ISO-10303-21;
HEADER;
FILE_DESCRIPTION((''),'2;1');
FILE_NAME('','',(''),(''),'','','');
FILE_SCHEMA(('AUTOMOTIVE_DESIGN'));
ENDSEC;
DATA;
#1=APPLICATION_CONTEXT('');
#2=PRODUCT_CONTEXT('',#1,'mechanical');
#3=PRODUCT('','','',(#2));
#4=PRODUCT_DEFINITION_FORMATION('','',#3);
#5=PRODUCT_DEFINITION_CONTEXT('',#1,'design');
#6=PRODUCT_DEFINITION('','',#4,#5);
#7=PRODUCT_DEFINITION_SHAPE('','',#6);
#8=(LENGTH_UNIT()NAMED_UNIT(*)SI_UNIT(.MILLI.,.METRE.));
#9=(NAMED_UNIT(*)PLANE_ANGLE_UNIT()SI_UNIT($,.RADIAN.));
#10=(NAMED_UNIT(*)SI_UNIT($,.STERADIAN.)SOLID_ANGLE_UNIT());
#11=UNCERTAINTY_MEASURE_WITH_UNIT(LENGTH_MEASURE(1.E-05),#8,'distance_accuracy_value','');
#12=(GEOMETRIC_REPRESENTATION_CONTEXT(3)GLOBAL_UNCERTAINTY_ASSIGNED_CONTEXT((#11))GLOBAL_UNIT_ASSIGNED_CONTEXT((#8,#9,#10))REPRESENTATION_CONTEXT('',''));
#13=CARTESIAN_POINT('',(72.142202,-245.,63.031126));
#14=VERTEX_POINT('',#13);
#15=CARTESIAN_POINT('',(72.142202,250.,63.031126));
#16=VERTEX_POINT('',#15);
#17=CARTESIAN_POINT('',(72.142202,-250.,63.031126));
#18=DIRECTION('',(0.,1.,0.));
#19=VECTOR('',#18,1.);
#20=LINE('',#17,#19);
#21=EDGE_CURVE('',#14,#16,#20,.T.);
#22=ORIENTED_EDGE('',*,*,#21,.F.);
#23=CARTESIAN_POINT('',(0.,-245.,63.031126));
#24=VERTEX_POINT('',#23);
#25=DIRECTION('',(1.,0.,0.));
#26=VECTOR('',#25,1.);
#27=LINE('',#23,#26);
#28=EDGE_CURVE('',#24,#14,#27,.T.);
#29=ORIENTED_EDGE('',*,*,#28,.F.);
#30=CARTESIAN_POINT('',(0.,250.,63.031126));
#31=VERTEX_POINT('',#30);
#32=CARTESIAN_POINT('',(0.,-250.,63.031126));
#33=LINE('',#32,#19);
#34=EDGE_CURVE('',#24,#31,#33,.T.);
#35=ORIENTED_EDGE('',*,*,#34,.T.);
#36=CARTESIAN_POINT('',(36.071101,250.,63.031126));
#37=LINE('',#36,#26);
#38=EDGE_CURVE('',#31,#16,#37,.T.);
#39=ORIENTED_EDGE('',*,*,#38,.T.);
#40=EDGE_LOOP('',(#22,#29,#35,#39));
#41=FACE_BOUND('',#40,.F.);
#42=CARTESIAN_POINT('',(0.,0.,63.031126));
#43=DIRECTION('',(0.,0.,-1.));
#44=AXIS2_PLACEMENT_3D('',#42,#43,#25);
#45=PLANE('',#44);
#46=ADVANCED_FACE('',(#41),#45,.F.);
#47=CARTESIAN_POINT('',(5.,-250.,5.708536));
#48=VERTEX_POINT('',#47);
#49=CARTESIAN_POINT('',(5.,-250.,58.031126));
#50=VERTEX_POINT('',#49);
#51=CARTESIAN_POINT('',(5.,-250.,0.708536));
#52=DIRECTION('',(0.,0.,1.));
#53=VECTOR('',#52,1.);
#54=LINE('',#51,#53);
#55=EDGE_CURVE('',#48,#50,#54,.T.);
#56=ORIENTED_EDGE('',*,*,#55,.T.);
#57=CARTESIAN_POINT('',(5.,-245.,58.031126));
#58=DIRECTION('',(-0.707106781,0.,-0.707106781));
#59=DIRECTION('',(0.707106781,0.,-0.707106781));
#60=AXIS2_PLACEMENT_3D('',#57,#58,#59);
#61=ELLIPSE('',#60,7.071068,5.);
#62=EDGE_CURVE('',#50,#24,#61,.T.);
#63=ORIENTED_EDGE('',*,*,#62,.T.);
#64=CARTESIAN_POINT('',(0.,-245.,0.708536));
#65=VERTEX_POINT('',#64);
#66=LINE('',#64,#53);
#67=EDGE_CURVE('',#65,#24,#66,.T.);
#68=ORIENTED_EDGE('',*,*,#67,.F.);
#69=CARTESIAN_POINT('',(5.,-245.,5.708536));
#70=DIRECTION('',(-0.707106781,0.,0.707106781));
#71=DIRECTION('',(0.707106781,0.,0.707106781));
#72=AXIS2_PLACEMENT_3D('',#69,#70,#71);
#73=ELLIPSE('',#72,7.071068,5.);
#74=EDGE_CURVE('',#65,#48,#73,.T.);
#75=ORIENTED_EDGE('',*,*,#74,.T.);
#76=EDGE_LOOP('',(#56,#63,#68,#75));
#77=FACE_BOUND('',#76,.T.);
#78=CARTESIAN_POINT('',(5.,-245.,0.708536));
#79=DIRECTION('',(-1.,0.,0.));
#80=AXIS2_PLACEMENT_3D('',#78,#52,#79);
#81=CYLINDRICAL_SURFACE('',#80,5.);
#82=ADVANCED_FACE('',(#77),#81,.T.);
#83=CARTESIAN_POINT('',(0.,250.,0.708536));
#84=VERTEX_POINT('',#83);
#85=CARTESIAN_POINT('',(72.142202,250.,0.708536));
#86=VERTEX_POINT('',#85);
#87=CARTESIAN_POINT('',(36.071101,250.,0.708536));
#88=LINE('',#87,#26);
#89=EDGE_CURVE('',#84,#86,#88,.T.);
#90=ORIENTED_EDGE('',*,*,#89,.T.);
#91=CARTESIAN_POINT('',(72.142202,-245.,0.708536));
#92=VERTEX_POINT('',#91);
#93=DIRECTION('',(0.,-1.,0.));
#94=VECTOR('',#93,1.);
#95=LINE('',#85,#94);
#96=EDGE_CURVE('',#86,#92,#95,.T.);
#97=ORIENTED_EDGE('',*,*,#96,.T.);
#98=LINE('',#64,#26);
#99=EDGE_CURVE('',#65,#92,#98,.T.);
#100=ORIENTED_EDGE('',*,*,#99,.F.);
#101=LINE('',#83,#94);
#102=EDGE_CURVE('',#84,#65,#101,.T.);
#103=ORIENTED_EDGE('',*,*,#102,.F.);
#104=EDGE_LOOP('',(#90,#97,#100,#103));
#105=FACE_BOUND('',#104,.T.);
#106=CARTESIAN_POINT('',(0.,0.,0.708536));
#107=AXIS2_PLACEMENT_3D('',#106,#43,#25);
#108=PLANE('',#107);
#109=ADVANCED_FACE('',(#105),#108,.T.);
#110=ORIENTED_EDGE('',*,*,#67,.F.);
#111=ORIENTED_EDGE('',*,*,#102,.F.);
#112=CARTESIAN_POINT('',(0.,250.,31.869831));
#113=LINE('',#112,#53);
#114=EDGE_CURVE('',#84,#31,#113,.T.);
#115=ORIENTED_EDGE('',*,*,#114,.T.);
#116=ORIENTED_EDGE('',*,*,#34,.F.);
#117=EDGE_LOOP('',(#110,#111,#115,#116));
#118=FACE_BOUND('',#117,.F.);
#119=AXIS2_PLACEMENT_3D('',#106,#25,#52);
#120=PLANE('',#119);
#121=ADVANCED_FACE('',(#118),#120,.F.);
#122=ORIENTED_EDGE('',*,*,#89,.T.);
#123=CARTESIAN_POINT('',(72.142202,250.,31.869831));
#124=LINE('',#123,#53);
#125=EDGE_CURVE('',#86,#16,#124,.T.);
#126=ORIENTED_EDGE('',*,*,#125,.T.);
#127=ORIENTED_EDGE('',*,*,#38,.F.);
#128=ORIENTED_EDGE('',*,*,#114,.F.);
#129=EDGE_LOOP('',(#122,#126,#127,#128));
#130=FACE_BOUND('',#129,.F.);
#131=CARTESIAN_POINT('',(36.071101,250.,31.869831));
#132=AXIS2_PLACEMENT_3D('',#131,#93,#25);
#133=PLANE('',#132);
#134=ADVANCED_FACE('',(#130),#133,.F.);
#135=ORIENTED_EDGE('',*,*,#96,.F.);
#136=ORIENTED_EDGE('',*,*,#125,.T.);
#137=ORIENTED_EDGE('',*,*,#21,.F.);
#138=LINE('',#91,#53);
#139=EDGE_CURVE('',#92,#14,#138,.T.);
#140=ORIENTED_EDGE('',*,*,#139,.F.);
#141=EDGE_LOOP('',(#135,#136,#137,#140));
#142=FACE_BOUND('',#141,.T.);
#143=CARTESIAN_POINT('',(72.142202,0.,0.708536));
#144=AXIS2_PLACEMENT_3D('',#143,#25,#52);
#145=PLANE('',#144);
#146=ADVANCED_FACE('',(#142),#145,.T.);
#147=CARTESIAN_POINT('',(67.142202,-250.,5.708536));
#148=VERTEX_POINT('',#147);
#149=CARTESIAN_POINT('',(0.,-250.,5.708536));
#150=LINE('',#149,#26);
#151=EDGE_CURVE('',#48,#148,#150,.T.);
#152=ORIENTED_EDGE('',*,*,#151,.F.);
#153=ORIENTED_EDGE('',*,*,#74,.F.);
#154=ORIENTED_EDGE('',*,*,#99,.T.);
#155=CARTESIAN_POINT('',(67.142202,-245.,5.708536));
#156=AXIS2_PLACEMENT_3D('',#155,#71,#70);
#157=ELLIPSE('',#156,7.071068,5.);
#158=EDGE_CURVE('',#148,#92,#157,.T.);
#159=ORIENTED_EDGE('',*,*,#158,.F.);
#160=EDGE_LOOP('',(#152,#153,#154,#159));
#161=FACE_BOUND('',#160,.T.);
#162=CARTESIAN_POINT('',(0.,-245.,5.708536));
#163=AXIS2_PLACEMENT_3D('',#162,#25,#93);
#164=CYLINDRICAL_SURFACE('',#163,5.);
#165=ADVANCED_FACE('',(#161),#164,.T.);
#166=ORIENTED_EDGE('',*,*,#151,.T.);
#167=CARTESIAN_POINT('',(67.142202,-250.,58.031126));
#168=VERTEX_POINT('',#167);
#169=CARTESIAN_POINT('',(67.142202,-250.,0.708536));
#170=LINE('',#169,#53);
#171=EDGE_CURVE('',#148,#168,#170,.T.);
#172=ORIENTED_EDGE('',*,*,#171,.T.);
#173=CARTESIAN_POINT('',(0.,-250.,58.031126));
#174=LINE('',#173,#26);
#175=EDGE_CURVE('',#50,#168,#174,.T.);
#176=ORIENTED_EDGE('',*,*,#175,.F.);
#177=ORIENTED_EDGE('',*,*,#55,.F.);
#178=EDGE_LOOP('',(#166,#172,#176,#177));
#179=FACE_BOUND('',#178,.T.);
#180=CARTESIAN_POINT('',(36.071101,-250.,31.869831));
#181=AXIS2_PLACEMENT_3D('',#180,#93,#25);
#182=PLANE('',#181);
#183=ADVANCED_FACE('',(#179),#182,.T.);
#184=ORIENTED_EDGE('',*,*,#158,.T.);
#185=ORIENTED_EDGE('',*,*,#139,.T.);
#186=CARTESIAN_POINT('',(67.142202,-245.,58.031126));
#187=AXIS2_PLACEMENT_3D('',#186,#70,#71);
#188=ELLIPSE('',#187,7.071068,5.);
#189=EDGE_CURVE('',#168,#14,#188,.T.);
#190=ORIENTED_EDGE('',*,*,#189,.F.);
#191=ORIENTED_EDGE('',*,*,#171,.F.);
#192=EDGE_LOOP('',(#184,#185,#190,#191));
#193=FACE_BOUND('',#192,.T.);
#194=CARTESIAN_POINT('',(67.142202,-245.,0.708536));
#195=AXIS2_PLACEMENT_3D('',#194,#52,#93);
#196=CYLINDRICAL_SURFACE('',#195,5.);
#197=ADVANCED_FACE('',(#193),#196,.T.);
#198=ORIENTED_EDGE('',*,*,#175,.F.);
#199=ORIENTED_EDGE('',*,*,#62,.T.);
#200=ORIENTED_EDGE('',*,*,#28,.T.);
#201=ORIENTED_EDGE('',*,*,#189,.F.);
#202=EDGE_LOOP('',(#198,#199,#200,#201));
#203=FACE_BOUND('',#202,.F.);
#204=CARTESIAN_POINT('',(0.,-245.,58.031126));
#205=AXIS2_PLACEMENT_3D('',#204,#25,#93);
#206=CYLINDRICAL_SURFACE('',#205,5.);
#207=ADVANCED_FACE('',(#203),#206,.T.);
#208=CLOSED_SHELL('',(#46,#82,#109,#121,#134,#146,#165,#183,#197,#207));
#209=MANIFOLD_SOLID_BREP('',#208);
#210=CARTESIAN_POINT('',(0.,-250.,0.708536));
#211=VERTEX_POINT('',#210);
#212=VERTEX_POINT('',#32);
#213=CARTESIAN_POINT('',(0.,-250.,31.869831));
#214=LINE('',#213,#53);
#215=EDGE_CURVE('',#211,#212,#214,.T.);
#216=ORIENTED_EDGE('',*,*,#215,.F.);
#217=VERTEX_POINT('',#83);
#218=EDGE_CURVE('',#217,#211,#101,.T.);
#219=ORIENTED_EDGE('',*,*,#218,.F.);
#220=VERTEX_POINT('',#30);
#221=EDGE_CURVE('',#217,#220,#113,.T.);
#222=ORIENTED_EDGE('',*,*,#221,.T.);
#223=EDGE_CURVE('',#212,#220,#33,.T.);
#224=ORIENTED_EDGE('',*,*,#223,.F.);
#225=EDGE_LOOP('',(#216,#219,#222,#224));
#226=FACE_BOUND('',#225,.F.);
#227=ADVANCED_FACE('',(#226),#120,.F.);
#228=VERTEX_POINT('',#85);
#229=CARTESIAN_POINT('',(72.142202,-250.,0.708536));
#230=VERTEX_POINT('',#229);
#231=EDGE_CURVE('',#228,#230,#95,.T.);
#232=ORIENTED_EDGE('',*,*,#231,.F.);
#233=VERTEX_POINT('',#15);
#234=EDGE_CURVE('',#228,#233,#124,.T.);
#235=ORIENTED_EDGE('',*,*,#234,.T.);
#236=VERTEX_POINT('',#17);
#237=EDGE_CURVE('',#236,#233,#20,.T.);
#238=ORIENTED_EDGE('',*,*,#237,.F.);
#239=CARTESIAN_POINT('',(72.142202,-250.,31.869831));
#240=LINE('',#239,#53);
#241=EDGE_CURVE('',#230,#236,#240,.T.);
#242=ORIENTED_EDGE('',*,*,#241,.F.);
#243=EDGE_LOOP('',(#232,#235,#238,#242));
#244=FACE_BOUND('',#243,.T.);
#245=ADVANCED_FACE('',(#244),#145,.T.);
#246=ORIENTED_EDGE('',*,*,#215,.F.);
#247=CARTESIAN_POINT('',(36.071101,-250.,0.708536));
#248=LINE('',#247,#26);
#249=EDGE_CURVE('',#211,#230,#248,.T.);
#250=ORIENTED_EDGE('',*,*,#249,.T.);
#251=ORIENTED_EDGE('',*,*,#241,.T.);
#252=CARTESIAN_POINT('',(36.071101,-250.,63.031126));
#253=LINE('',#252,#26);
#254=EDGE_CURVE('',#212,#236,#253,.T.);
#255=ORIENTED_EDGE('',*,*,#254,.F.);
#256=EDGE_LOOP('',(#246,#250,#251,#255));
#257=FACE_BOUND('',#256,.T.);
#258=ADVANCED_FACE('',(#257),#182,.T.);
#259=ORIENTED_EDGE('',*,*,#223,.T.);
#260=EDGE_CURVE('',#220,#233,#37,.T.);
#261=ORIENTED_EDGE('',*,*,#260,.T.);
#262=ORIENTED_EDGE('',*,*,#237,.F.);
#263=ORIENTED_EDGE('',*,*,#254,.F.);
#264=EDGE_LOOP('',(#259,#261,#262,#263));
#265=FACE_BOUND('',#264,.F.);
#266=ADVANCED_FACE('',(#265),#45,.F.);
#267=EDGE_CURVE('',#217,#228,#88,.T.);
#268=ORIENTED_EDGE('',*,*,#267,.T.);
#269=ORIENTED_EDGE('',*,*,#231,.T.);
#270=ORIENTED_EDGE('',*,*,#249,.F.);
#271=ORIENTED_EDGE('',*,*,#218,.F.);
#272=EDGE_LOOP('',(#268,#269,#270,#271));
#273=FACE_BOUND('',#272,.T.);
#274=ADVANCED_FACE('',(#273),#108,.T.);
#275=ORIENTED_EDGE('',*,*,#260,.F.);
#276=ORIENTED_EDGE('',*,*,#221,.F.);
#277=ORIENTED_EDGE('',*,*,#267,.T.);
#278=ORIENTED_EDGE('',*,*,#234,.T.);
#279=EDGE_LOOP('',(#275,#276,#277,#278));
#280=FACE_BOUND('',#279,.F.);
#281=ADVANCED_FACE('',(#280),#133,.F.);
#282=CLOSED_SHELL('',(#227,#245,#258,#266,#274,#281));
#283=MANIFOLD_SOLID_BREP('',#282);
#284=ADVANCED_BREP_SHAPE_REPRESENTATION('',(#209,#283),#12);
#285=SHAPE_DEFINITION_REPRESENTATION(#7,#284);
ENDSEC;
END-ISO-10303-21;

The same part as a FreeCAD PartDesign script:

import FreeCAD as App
import Part
import Sketcher
from FreeCAD import Vector
Q = App.Units.Quantity


def edges_at(feature, points):
    """Names of the edges that pass closest to the given points."""
    edges = feature.Shape.Edges
    near = lambda p: min(range(len(edges)), key=lambda i: edges[i].distToShape(Part.Vertex(*p))[0])
    return sorted({f"Edge{near(p) + 1}" for p in points})

doc = App.newDocument("Part")
params = doc.addObject("Spreadsheet::Sheet", "Params")
for row, (alias, value) in enumerate([
    ("pad1_length", "500 mm"),
    ("fillet_radius", "5 mm"),
    ("pad2_length", "500 mm"),
], start=1):
    params.set(f"A{row}", alias)
    params.set(f"B{row}", "=" + value)
    params.setAlias(f"B{row}", alias)

body = doc.addObject("PartDesign::Body", "Body")

sketch1 = body.newObject("Sketcher::SketchObject", "Sketch")
sketch1.AttachmentSupport = (doc.getObject("XZ_Plane"), [""])
sketch1.MapMode = "FlatFace"
sketch1.addGeometry(Part.LineSegment(Vector(0, 63, 0), Vector(0, 1, 0)), False)
sketch1.addGeometry(Part.LineSegment(Vector(0, 1, 0), Vector(72, 1, 0)), False)
sketch1.addGeometry(Part.LineSegment(Vector(72, 1, 0), Vector(72, 63, 0)), False)
sketch1.addGeometry(Part.LineSegment(Vector(72, 63, 0), Vector(0, 63, 0)), False)
sketch1.addConstraint(Sketcher.Constraint("Coincident", 0, 2, 1, 1))
sketch1.addConstraint(Sketcher.Constraint("Coincident", 1, 2, 2, 1))
sketch1.addConstraint(Sketcher.Constraint("Coincident", 2, 2, 3, 1))
sketch1.addConstraint(Sketcher.Constraint("Coincident", 3, 2, 0, 1))
sketch1.addConstraint(Sketcher.Constraint("Vertical", 0))
sketch1.addConstraint(Sketcher.Constraint("Horizontal", 1))
sketch1.addConstraint(Sketcher.Constraint("Vertical", 2))
sketch1.addConstraint(Sketcher.Constraint("Horizontal", 3))
sketch1.addConstraint(Sketcher.Constraint("PointOnObject", 0, 2, -2))
sketch1.addConstraint(Sketcher.Constraint("DistanceY", 0, 2, 0, 1, Q("62.32259 mm")))
sketch1.addConstraint(Sketcher.Constraint("DistanceX", 1, 1, 1, 2, Q("72.142202 mm")))
sketch1.addConstraint(Sketcher.Constraint("DistanceY", -1, 1, 0, 2, Q("0.708536 mm")))
pad1 = body.newObject("PartDesign::Pad", "Pad")
pad1.Profile = sketch1
pad1.setExpression("Length", "Params.pad1_length")
pad1.Midplane = True
doc.recompute()

fillet = body.newObject("PartDesign::Fillet", "Fillet")
fillet.Base = (pad1, edges_at(pad1, [
    (72.142, -250, 31.87),
    (36.071, -250, 63.031),
    (0, -250, 31.87),
    (36.071, -250, 0.709),
]))
fillet.setExpression("Radius", "Params.fillet_radius")
body2 = doc.addObject("PartDesign::Body", "Body001")

sketch2 = body2.newObject("Sketcher::SketchObject", "Sketch001")
sketch2.AttachmentSupport = (doc.getObject("XZ_Plane001"), [""])
sketch2.MapMode = "FlatFace"
sketch2.addGeometry(Part.LineSegment(Vector(0, 63, 0), Vector(0, 1, 0)), False)
sketch2.addGeometry(Part.LineSegment(Vector(0, 1, 0), Vector(72, 1, 0)), False)
sketch2.addGeometry(Part.LineSegment(Vector(72, 1, 0), Vector(72, 63, 0)), False)
sketch2.addGeometry(Part.LineSegment(Vector(72, 63, 0), Vector(0, 63, 0)), False)
sketch2.addConstraint(Sketcher.Constraint("Coincident", 0, 2, 1, 1))
sketch2.addConstraint(Sketcher.Constraint("Coincident", 1, 2, 2, 1))
sketch2.addConstraint(Sketcher.Constraint("Coincident", 2, 2, 3, 1))
sketch2.addConstraint(Sketcher.Constraint("Coincident", 3, 2, 0, 1))
sketch2.addConstraint(Sketcher.Constraint("Vertical", 0))
sketch2.addConstraint(Sketcher.Constraint("Horizontal", 1))
sketch2.addConstraint(Sketcher.Constraint("Vertical", 2))
sketch2.addConstraint(Sketcher.Constraint("Horizontal", 3))
sketch2.addConstraint(Sketcher.Constraint("PointOnObject", 0, 2, -2))
sketch2.addConstraint(Sketcher.Constraint("DistanceY", 0, 2, 0, 1, Q("62.32259 mm")))
sketch2.addConstraint(Sketcher.Constraint("DistanceX", 1, 1, 1, 2, Q("72.142202 mm")))
sketch2.addConstraint(Sketcher.Constraint("DistanceY", -1, 1, 0, 2, Q("0.708536 mm")))
pad2 = body2.newObject("PartDesign::Pad", "Pad001")
pad2.Profile = sketch2
pad2.setExpression("Length", "Params.pad2_length")
pad2.Midplane = True

doc.recompute()
